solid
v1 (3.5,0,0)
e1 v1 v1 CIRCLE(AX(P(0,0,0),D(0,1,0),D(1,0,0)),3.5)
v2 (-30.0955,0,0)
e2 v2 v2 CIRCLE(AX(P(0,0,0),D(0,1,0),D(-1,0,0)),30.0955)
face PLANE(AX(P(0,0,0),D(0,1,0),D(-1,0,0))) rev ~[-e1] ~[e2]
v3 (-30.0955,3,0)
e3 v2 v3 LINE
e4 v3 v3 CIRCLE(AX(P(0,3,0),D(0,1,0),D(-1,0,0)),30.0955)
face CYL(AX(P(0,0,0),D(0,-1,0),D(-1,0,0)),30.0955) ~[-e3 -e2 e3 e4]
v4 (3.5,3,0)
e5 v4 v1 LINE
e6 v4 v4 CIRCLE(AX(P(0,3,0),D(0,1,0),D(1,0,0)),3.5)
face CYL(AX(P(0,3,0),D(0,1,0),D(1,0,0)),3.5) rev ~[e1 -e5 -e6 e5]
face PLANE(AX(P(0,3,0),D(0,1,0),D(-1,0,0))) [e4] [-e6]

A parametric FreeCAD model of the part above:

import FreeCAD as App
import Part
import Sketcher
Q = App.Units.Quantity

doc = App.newDocument("Part")
params = doc.addObject("Spreadsheet::Sheet", "Params")
for row, (alias, value) in enumerate([
    ("pad1_length", "3 mm"),
    ("sketch2_diameter", "7 mm"),
    ("pocket1_length", "3 mm"),
], start=1):
    params.set(f"A{row}", alias)
    params.set(f"B{row}", "=" + value)
    params.setAlias(f"B{row}", alias)

body = doc.addObject("PartDesign::Body", "Body")

# Sketch on XZ plane
sketch1 = body.newObject("Sketcher::SketchObject", "Sketch")
sketch1.AttachmentSupport = (doc.getObject("XZ_Plane"), [""])
sketch1.MapMode = "FlatFace"
sketch1.addGeometry(Part.Circle(App.Vector(0, 0, 0), App.Vector(0, 0, 1), 30), False)
sketch1.addConstraint([
    Sketcher.Constraint("Coincident", 0, 3, -1, 1),
    Sketcher.Constraint("Diameter", 0, Q("60.191 mm")),
])
pad1 = body.newObject("PartDesign::Pad", "Pad")
pad1.Profile = sketch1
pad1.setExpression("Length", "Params.pad1_length")
pad1.Reversed = True

# Sketch on XZ plane
sketch2 = body.newObject("Sketcher::SketchObject", "Sketch001")
sketch2.AttachmentSupport = (doc.getObject("XZ_Plane"), [""])
sketch2.MapMode = "FlatFace"
sketch2.AttachmentOffset = App.Placement(App.Vector(0, 0, -3), App.Rotation())
sketch2.addGeometry(Part.Circle(App.Vector(0, 0, 0), App.Vector(0, 0, 1), 3.5), False)
sketch2.addConstraint([
    Sketcher.Constraint("Coincident", 0, 3, -1, 1),
    Sketcher.Constraint("Diameter", 0, Q("7 mm")),
])
sketch2.setExpression("Constraints[1]", "Params.sketch2_diameter")
pocket1 = body.newObject("PartDesign::Pocket", "Pocket")
pocket1.Profile = sketch2
pocket1.setExpression("Length", "Params.pocket1_length")
pocket1.Reversed = True

doc.recompute()
